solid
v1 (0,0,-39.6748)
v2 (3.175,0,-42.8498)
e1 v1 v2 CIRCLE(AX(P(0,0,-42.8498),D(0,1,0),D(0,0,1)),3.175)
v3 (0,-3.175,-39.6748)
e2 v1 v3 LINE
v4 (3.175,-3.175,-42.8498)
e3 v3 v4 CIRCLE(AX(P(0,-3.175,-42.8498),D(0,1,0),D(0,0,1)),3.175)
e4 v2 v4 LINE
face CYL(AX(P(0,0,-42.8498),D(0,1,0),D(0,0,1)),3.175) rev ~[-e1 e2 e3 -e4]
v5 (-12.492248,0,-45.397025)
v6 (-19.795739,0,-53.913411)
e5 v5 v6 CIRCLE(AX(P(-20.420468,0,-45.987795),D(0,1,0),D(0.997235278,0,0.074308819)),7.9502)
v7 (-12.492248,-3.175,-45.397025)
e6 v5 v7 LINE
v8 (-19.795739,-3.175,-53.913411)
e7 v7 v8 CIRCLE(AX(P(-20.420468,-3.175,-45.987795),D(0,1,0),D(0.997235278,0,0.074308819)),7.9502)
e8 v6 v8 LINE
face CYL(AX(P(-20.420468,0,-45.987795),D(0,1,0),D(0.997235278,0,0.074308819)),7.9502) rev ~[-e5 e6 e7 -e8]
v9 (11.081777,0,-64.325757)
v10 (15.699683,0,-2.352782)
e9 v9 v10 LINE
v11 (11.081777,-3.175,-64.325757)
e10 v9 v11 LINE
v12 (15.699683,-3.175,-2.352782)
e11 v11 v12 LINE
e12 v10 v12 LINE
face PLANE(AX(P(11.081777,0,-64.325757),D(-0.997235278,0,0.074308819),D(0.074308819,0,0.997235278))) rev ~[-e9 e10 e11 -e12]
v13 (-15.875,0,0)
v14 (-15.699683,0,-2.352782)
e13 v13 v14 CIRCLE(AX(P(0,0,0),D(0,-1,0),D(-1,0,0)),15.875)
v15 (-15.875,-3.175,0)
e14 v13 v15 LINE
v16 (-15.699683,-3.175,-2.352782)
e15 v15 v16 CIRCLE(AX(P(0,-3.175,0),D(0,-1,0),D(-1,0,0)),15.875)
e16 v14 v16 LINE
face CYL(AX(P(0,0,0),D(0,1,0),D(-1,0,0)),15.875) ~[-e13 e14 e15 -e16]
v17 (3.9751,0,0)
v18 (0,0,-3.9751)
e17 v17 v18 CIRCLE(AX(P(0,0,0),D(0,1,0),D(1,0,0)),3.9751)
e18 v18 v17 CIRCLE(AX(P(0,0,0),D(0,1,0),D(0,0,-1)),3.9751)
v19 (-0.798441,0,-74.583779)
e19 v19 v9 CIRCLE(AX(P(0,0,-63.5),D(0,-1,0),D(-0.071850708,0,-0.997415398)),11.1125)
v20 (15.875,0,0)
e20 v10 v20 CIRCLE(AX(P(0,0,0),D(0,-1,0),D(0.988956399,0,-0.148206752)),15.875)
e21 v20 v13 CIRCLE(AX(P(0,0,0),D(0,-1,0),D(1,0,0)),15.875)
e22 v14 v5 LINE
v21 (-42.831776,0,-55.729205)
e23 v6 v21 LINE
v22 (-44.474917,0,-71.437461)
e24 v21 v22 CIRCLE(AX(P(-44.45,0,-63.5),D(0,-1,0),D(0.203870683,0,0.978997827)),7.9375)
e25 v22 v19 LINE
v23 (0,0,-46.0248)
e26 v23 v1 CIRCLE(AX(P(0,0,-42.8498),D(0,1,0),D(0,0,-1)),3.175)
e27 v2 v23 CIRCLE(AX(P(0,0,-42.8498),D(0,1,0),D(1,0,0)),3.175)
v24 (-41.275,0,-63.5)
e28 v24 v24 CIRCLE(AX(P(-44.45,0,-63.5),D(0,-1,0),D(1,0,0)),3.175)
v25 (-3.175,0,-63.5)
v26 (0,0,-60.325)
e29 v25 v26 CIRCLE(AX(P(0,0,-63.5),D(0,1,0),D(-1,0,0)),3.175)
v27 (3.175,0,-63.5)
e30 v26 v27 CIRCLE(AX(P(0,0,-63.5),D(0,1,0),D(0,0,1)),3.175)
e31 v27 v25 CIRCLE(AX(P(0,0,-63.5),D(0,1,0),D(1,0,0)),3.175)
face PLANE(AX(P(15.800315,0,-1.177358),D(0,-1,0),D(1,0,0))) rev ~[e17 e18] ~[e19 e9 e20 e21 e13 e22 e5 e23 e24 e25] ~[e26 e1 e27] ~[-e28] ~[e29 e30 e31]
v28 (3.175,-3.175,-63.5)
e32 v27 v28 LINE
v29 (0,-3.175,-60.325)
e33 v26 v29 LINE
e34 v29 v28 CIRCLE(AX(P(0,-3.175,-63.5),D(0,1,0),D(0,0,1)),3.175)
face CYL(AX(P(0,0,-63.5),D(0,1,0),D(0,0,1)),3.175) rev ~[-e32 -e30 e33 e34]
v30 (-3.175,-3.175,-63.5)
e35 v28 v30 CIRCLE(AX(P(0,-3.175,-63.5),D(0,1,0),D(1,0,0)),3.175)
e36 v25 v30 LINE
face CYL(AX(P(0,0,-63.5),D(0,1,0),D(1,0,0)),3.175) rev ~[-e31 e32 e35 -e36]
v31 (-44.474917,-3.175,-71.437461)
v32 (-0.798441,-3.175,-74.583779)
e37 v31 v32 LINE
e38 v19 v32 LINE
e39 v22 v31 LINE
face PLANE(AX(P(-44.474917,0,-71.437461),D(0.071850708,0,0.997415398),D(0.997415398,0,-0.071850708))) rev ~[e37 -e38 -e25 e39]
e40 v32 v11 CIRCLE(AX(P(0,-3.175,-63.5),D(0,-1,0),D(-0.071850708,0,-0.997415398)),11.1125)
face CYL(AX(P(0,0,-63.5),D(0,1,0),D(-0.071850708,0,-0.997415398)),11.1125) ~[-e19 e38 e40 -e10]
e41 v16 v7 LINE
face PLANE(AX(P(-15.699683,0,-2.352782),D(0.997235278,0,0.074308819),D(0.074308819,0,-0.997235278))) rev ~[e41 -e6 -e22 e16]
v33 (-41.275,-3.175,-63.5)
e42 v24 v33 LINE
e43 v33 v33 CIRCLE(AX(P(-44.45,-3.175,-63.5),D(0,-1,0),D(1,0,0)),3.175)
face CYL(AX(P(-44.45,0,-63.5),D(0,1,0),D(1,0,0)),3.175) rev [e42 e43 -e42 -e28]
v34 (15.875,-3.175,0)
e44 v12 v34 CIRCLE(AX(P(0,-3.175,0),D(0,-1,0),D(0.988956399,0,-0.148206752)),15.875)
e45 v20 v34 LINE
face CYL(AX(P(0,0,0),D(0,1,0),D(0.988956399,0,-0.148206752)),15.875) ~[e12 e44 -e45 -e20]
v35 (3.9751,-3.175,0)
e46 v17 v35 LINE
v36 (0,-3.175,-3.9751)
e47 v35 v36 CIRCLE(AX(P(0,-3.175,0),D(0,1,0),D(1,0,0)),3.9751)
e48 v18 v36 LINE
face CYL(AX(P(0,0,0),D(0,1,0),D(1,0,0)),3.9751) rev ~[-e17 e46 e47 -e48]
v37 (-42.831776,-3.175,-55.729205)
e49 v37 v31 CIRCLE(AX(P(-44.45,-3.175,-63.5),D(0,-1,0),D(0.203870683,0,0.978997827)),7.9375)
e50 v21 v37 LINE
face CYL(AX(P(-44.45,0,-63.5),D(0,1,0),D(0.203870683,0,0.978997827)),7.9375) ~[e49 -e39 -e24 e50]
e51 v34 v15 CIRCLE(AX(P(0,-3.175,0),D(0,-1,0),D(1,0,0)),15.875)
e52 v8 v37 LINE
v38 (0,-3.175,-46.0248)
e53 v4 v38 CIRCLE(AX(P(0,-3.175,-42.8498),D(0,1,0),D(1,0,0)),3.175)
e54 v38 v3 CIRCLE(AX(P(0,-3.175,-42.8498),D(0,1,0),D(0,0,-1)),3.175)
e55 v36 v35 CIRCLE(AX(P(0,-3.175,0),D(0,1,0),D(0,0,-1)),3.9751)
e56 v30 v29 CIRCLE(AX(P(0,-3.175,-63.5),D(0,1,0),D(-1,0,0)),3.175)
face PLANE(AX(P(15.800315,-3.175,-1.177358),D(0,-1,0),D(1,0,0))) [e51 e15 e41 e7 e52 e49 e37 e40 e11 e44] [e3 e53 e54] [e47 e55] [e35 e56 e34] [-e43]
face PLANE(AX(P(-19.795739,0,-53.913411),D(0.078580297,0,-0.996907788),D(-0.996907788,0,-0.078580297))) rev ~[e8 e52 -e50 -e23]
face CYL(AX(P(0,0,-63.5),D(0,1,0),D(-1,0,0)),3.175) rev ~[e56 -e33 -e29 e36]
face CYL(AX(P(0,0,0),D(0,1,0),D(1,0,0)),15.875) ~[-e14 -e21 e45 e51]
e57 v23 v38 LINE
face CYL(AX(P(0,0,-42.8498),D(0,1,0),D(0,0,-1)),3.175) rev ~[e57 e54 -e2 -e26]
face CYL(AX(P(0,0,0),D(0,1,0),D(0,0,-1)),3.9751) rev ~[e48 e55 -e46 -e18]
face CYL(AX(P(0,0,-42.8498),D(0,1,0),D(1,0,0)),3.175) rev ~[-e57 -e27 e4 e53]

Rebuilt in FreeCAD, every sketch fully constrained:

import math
import FreeCAD as App
import Part
import Sketcher
Q = App.Units.Quantity

doc = App.newDocument("Part")
body = doc.addObject("PartDesign::Body", "Body")

sketch1 = doc.addObject("Sketcher::SketchObject", "Sketch")
body.addObject(sketch1)
sketch1.AttachmentSupport = (doc.XZ_Plane, [""])
sketch1.MapMode = "FlatFace"
sketch1.addGeometry(Part.ArcOfCircle(Part.Circle(App.Vector(0, 0, 0), App.Vector(0, 0, 1), 15.9), math.radians(-8.52), math.radians(0)), False)
sketch1.addGeometry(Part.ArcOfCircle(Part.Circle(App.Vector(0, 0, 0), App.Vector(0, 0, 1), 15.9), math.radians(0), math.radians(180)), False)
sketch1.addGeometry(Part.ArcOfCircle(Part.Circle(App.Vector(0, 0, 0), App.Vector(0, 0, 1), 15.9), math.radians(180), math.radians(188.52)), False)
sketch1.addGeometry(Part.LineSegment(App.Vector(-15.7, -2.4, 0), App.Vector(-12.5, -45.4, 0)), False)
sketch1.addGeometry(Part.ArcOfCircle(Part.Circle(App.Vector(-20.4, -46, 0), App.Vector(0, 0, 1), 8), math.radians(-85), math.radians(4)), False)
sketch1.addGeometry(Part.LineSegment(App.Vector(-19.8, -53.9, 0), App.Vector(-42.8, -55.7, 0)), False)
sketch1.addGeometry(Part.ArcOfCircle(Part.Circle(App.Vector(-44.5, -63.5, 0), App.Vector(0, 0, 1), 7.9), math.radians(78), math.radians(270)), False)
sketch1.addGeometry(Part.LineSegment(App.Vector(-44.5, -71.4, 0), App.Vector(-0.8, -74.6, 0)), False)
sketch1.addGeometry(Part.ArcOfCircle(Part.Circle(App.Vector(0, -63.5, 0), App.Vector(0, 0, 1), 11.1), math.radians(-94), math.radians(-4)), False)
sketch1.addGeometry(Part.LineSegment(App.Vector(11.1, -64.3, 0), App.Vector(15.7, -2.4, 0)), False)
sketch1.addGeometry(Part.Circle(App.Vector(-44.5, -63.5, 0), App.Vector(0, 0, 1), 3.2), False)
sketch1.addGeometry(Part.ArcOfCircle(Part.Circle(App.Vector(0, -63.5, 0), App.Vector(0, 0, 1), 3.2), math.radians(180), math.radians(360)), False)
sketch1.addGeometry(Part.ArcOfCircle(Part.Circle(App.Vector(0, -63.5, 0), App.Vector(0, 0, 1), 3.2), math.radians(90), math.radians(180)), False)
sketch1.addGeometry(Part.ArcOfCircle(Part.Circle(App.Vector(0, -63.5, 0), App.Vector(0, 0, 1), 3.2), math.radians(0), math.radians(90)), False)
sketch1.addGeometry(Part.ArcOfCircle(Part.Circle(App.Vector(0, -42.8, 0), App.Vector(0, 0, 1), 3.2), math.radians(-90), math.radians(0)), False)
sketch1.addGeometry(Part.ArcOfCircle(Part.Circle(App.Vector(0, -42.8, 0), App.Vector(0, 0, 1), 3.2), math.radians(90), math.radians(270)), False)
sketch1.addGeometry(Part.ArcOfCircle(Part.Circle(App.Vector(0, -42.8, 0), App.Vector(0, 0, 1), 3.2), math.radians(0), math.radians(90)), False)
sketch1.addGeometry(Part.ArcOfCircle(Part.Circle(App.Vector(0, 0, 0), App.Vector(0, 0, 1), 4), math.radians(0), math.radians(270)), False)
sketch1.addGeometry(Part.ArcOfCircle(Part.Circle(App.Vector(0, 0, 0), App.Vector(0, 0, 1), 4), math.radians(-90), math.radians(0)), False)
sketch1.addConstraint(Sketcher.Constraint("Tangent", 0, 2, 1, 1))
sketch1.addConstraint(Sketcher.Constraint("Tangent", 1, 2, 2, 1))
sketch1.addConstraint(Sketcher.Constraint("Coincident", 2, 2, 3, 1))
sketch1.addConstraint(Sketcher.Constraint("Tangent", 3, 2, 4, 2))
sketch1.addConstraint(Sketcher.Constraint("Tangent", 4, 1, 5, 1))
sketch1.addConstraint(Sketcher.Constraint("Coincident", 5, 2, 6, 1))
sketch1.addConstraint(Sketcher.Constraint("Coincident", 6, 2, 7, 1))
sketch1.addConstraint(Sketcher.Constraint("Tangent", 7, 2, 8, 1))
sketch1.addConstraint(Sketcher.Constraint("Tangent", 8, 2, 9, 1))
sketch1.addConstraint(Sketcher.Constraint("Coincident", 9, 2, 0, 1))
sketch1.addConstraint(Sketcher.Constraint("Tangent", 11, 1, 12, 2))
sketch1.addConstraint(Sketcher.Constraint("Tangent", 12, 1, 13, 2))
sketch1.addConstraint(Sketcher.Constraint("Tangent", 13, 1, 11, 2))
sketch1.addConstraint(Sketcher.Constraint("Tangent", 14, 1, 15, 2))
sketch1.addConstraint(Sketcher.Constraint("Tangent", 15, 1, 16, 2))
sketch1.addConstraint(Sketcher.Constraint("Tangent", 16, 1, 14, 2))
sketch1.addConstraint(Sketcher.Constraint("Tangent", 17, 1, 18, 2))
sketch1.addConstraint(Sketcher.Constraint("Coincident", 18, 1, 17, 2))
sketch1.addConstraint(Sketcher.Constraint("Coincident", 0, 3, -1, 1))
sketch1.addConstraint(Sketcher.Constraint("Coincident", 17, 3, -1, 1))
sketch1.addConstraint(Sketcher.Constraint("Coincident", 10, 3, 6, 3))
sketch1.addConstraint(Sketcher.Constraint("Coincident", 11, 3, 8, 3))
sketch1.addConstraint(Sketcher.Constraint("Equal", 0, 1))
sketch1.addConstraint(Sketcher.Constraint("Equal", 1, 2))
sketch1.addConstraint(Sketcher.Constraint("Equal", 10, 11))
sketch1.addConstraint(Sketcher.Constraint("Equal", 13, 14))
sketch1.addConstraint(Sketcher.Constraint("Symmetric", 11, 1, 13, 1, -2))
sketch1.addConstraint(Sketcher.Constraint("PointOnObject", 14, 3, -2))
sketch1.addConstraint(Sketcher.Constraint("PointOnObject", 0, 2, -1))
sketch1.addConstraint(Sketcher.Constraint("PointOnObject", 1, 2, -1))
sketch1.addConstraint(Sketcher.Constraint("PointOnObject", 12, 1, -2))
sketch1.addConstraint(Sketcher.Constraint("PointOnObject", 14, 1, -2))
sketch1.addConstraint(Sketcher.Constraint("PointOnObject", 15, 1, -2))
sketch1.addConstraint(Sketcher.Constraint("PointOnObject", 17, 1, -1))
sketch1.addConstraint(Sketcher.Constraint("PointOnObject", 18, 1, -2))
sketch1.addConstraint(Sketcher.Constraint("Horizontal", 6, 3, 8, 3))
sketch1.addConstraint(Sketcher.Constraint("Horizontal", 2, 2, 9, 2))
sketch1.addConstraint(Sketcher.Constraint("Horizontal", 13, 3, 11, 1))
sketch1.addConstraint(Sketcher.Constraint("Horizontal", 15, 3, 16, 1))
sketch1.addConstraint(Sketcher.Constraint("Diameter", 10, Q("0.25 in")))
sketch1.addConstraint(Sketcher.Constraint("Radius", 0, Q("0.625 in")))
sketch1.addConstraint(Sketcher.Constraint("Radius", 4, Q("0.313 in")))
sketch1.addConstraint(Sketcher.Constraint("Radius", 6, Q("0.3125 in")))
sketch1.addConstraint(Sketcher.Constraint("Radius", 8, Q("0.4375 in")))
sketch1.addConstraint(Sketcher.Constraint("DistanceY", 6, 3, -1, 1, Q("2.5 in")))
sketch1.addConstraint(Sketcher.Constraint("Radius", 17, Q("0.1565 in")))
sketch1.addConstraint(Sketcher.Constraint("DistanceX", 6, 3, -1, 1, Q("1.75 in")))
sketch1.addConstraint(Sketcher.Constraint("DistanceY", 14, 3, -1, 1, Q("1.687 in")))
sketch1.addConstraint(Sketcher.Constraint("DistanceX", 4, 1, 7, 2, Q("18.997298 mm")))
sketch1.addConstraint(Sketcher.Constraint("Distance", 3, Q("43.163578 mm")))
sketch1.addConstraint(Sketcher.Constraint("Distance", 5, Q("23.107491 mm")))
sketch1.addConstraint(Sketcher.Constraint("DistanceX", 4, 3, -1, 1, Q("20.420468 mm")))
sketch1.addConstraint(Sketcher.Constraint("DistanceX", 4, 1, -1, 1, Q("19.795739 mm")))
pad1 = doc.addObject("PartDesign::Pad", "Pad")
body.addObject(pad1)
pad1.Profile = sketch1
pad1.Length = Q("0.125 in")

doc.recompute()
